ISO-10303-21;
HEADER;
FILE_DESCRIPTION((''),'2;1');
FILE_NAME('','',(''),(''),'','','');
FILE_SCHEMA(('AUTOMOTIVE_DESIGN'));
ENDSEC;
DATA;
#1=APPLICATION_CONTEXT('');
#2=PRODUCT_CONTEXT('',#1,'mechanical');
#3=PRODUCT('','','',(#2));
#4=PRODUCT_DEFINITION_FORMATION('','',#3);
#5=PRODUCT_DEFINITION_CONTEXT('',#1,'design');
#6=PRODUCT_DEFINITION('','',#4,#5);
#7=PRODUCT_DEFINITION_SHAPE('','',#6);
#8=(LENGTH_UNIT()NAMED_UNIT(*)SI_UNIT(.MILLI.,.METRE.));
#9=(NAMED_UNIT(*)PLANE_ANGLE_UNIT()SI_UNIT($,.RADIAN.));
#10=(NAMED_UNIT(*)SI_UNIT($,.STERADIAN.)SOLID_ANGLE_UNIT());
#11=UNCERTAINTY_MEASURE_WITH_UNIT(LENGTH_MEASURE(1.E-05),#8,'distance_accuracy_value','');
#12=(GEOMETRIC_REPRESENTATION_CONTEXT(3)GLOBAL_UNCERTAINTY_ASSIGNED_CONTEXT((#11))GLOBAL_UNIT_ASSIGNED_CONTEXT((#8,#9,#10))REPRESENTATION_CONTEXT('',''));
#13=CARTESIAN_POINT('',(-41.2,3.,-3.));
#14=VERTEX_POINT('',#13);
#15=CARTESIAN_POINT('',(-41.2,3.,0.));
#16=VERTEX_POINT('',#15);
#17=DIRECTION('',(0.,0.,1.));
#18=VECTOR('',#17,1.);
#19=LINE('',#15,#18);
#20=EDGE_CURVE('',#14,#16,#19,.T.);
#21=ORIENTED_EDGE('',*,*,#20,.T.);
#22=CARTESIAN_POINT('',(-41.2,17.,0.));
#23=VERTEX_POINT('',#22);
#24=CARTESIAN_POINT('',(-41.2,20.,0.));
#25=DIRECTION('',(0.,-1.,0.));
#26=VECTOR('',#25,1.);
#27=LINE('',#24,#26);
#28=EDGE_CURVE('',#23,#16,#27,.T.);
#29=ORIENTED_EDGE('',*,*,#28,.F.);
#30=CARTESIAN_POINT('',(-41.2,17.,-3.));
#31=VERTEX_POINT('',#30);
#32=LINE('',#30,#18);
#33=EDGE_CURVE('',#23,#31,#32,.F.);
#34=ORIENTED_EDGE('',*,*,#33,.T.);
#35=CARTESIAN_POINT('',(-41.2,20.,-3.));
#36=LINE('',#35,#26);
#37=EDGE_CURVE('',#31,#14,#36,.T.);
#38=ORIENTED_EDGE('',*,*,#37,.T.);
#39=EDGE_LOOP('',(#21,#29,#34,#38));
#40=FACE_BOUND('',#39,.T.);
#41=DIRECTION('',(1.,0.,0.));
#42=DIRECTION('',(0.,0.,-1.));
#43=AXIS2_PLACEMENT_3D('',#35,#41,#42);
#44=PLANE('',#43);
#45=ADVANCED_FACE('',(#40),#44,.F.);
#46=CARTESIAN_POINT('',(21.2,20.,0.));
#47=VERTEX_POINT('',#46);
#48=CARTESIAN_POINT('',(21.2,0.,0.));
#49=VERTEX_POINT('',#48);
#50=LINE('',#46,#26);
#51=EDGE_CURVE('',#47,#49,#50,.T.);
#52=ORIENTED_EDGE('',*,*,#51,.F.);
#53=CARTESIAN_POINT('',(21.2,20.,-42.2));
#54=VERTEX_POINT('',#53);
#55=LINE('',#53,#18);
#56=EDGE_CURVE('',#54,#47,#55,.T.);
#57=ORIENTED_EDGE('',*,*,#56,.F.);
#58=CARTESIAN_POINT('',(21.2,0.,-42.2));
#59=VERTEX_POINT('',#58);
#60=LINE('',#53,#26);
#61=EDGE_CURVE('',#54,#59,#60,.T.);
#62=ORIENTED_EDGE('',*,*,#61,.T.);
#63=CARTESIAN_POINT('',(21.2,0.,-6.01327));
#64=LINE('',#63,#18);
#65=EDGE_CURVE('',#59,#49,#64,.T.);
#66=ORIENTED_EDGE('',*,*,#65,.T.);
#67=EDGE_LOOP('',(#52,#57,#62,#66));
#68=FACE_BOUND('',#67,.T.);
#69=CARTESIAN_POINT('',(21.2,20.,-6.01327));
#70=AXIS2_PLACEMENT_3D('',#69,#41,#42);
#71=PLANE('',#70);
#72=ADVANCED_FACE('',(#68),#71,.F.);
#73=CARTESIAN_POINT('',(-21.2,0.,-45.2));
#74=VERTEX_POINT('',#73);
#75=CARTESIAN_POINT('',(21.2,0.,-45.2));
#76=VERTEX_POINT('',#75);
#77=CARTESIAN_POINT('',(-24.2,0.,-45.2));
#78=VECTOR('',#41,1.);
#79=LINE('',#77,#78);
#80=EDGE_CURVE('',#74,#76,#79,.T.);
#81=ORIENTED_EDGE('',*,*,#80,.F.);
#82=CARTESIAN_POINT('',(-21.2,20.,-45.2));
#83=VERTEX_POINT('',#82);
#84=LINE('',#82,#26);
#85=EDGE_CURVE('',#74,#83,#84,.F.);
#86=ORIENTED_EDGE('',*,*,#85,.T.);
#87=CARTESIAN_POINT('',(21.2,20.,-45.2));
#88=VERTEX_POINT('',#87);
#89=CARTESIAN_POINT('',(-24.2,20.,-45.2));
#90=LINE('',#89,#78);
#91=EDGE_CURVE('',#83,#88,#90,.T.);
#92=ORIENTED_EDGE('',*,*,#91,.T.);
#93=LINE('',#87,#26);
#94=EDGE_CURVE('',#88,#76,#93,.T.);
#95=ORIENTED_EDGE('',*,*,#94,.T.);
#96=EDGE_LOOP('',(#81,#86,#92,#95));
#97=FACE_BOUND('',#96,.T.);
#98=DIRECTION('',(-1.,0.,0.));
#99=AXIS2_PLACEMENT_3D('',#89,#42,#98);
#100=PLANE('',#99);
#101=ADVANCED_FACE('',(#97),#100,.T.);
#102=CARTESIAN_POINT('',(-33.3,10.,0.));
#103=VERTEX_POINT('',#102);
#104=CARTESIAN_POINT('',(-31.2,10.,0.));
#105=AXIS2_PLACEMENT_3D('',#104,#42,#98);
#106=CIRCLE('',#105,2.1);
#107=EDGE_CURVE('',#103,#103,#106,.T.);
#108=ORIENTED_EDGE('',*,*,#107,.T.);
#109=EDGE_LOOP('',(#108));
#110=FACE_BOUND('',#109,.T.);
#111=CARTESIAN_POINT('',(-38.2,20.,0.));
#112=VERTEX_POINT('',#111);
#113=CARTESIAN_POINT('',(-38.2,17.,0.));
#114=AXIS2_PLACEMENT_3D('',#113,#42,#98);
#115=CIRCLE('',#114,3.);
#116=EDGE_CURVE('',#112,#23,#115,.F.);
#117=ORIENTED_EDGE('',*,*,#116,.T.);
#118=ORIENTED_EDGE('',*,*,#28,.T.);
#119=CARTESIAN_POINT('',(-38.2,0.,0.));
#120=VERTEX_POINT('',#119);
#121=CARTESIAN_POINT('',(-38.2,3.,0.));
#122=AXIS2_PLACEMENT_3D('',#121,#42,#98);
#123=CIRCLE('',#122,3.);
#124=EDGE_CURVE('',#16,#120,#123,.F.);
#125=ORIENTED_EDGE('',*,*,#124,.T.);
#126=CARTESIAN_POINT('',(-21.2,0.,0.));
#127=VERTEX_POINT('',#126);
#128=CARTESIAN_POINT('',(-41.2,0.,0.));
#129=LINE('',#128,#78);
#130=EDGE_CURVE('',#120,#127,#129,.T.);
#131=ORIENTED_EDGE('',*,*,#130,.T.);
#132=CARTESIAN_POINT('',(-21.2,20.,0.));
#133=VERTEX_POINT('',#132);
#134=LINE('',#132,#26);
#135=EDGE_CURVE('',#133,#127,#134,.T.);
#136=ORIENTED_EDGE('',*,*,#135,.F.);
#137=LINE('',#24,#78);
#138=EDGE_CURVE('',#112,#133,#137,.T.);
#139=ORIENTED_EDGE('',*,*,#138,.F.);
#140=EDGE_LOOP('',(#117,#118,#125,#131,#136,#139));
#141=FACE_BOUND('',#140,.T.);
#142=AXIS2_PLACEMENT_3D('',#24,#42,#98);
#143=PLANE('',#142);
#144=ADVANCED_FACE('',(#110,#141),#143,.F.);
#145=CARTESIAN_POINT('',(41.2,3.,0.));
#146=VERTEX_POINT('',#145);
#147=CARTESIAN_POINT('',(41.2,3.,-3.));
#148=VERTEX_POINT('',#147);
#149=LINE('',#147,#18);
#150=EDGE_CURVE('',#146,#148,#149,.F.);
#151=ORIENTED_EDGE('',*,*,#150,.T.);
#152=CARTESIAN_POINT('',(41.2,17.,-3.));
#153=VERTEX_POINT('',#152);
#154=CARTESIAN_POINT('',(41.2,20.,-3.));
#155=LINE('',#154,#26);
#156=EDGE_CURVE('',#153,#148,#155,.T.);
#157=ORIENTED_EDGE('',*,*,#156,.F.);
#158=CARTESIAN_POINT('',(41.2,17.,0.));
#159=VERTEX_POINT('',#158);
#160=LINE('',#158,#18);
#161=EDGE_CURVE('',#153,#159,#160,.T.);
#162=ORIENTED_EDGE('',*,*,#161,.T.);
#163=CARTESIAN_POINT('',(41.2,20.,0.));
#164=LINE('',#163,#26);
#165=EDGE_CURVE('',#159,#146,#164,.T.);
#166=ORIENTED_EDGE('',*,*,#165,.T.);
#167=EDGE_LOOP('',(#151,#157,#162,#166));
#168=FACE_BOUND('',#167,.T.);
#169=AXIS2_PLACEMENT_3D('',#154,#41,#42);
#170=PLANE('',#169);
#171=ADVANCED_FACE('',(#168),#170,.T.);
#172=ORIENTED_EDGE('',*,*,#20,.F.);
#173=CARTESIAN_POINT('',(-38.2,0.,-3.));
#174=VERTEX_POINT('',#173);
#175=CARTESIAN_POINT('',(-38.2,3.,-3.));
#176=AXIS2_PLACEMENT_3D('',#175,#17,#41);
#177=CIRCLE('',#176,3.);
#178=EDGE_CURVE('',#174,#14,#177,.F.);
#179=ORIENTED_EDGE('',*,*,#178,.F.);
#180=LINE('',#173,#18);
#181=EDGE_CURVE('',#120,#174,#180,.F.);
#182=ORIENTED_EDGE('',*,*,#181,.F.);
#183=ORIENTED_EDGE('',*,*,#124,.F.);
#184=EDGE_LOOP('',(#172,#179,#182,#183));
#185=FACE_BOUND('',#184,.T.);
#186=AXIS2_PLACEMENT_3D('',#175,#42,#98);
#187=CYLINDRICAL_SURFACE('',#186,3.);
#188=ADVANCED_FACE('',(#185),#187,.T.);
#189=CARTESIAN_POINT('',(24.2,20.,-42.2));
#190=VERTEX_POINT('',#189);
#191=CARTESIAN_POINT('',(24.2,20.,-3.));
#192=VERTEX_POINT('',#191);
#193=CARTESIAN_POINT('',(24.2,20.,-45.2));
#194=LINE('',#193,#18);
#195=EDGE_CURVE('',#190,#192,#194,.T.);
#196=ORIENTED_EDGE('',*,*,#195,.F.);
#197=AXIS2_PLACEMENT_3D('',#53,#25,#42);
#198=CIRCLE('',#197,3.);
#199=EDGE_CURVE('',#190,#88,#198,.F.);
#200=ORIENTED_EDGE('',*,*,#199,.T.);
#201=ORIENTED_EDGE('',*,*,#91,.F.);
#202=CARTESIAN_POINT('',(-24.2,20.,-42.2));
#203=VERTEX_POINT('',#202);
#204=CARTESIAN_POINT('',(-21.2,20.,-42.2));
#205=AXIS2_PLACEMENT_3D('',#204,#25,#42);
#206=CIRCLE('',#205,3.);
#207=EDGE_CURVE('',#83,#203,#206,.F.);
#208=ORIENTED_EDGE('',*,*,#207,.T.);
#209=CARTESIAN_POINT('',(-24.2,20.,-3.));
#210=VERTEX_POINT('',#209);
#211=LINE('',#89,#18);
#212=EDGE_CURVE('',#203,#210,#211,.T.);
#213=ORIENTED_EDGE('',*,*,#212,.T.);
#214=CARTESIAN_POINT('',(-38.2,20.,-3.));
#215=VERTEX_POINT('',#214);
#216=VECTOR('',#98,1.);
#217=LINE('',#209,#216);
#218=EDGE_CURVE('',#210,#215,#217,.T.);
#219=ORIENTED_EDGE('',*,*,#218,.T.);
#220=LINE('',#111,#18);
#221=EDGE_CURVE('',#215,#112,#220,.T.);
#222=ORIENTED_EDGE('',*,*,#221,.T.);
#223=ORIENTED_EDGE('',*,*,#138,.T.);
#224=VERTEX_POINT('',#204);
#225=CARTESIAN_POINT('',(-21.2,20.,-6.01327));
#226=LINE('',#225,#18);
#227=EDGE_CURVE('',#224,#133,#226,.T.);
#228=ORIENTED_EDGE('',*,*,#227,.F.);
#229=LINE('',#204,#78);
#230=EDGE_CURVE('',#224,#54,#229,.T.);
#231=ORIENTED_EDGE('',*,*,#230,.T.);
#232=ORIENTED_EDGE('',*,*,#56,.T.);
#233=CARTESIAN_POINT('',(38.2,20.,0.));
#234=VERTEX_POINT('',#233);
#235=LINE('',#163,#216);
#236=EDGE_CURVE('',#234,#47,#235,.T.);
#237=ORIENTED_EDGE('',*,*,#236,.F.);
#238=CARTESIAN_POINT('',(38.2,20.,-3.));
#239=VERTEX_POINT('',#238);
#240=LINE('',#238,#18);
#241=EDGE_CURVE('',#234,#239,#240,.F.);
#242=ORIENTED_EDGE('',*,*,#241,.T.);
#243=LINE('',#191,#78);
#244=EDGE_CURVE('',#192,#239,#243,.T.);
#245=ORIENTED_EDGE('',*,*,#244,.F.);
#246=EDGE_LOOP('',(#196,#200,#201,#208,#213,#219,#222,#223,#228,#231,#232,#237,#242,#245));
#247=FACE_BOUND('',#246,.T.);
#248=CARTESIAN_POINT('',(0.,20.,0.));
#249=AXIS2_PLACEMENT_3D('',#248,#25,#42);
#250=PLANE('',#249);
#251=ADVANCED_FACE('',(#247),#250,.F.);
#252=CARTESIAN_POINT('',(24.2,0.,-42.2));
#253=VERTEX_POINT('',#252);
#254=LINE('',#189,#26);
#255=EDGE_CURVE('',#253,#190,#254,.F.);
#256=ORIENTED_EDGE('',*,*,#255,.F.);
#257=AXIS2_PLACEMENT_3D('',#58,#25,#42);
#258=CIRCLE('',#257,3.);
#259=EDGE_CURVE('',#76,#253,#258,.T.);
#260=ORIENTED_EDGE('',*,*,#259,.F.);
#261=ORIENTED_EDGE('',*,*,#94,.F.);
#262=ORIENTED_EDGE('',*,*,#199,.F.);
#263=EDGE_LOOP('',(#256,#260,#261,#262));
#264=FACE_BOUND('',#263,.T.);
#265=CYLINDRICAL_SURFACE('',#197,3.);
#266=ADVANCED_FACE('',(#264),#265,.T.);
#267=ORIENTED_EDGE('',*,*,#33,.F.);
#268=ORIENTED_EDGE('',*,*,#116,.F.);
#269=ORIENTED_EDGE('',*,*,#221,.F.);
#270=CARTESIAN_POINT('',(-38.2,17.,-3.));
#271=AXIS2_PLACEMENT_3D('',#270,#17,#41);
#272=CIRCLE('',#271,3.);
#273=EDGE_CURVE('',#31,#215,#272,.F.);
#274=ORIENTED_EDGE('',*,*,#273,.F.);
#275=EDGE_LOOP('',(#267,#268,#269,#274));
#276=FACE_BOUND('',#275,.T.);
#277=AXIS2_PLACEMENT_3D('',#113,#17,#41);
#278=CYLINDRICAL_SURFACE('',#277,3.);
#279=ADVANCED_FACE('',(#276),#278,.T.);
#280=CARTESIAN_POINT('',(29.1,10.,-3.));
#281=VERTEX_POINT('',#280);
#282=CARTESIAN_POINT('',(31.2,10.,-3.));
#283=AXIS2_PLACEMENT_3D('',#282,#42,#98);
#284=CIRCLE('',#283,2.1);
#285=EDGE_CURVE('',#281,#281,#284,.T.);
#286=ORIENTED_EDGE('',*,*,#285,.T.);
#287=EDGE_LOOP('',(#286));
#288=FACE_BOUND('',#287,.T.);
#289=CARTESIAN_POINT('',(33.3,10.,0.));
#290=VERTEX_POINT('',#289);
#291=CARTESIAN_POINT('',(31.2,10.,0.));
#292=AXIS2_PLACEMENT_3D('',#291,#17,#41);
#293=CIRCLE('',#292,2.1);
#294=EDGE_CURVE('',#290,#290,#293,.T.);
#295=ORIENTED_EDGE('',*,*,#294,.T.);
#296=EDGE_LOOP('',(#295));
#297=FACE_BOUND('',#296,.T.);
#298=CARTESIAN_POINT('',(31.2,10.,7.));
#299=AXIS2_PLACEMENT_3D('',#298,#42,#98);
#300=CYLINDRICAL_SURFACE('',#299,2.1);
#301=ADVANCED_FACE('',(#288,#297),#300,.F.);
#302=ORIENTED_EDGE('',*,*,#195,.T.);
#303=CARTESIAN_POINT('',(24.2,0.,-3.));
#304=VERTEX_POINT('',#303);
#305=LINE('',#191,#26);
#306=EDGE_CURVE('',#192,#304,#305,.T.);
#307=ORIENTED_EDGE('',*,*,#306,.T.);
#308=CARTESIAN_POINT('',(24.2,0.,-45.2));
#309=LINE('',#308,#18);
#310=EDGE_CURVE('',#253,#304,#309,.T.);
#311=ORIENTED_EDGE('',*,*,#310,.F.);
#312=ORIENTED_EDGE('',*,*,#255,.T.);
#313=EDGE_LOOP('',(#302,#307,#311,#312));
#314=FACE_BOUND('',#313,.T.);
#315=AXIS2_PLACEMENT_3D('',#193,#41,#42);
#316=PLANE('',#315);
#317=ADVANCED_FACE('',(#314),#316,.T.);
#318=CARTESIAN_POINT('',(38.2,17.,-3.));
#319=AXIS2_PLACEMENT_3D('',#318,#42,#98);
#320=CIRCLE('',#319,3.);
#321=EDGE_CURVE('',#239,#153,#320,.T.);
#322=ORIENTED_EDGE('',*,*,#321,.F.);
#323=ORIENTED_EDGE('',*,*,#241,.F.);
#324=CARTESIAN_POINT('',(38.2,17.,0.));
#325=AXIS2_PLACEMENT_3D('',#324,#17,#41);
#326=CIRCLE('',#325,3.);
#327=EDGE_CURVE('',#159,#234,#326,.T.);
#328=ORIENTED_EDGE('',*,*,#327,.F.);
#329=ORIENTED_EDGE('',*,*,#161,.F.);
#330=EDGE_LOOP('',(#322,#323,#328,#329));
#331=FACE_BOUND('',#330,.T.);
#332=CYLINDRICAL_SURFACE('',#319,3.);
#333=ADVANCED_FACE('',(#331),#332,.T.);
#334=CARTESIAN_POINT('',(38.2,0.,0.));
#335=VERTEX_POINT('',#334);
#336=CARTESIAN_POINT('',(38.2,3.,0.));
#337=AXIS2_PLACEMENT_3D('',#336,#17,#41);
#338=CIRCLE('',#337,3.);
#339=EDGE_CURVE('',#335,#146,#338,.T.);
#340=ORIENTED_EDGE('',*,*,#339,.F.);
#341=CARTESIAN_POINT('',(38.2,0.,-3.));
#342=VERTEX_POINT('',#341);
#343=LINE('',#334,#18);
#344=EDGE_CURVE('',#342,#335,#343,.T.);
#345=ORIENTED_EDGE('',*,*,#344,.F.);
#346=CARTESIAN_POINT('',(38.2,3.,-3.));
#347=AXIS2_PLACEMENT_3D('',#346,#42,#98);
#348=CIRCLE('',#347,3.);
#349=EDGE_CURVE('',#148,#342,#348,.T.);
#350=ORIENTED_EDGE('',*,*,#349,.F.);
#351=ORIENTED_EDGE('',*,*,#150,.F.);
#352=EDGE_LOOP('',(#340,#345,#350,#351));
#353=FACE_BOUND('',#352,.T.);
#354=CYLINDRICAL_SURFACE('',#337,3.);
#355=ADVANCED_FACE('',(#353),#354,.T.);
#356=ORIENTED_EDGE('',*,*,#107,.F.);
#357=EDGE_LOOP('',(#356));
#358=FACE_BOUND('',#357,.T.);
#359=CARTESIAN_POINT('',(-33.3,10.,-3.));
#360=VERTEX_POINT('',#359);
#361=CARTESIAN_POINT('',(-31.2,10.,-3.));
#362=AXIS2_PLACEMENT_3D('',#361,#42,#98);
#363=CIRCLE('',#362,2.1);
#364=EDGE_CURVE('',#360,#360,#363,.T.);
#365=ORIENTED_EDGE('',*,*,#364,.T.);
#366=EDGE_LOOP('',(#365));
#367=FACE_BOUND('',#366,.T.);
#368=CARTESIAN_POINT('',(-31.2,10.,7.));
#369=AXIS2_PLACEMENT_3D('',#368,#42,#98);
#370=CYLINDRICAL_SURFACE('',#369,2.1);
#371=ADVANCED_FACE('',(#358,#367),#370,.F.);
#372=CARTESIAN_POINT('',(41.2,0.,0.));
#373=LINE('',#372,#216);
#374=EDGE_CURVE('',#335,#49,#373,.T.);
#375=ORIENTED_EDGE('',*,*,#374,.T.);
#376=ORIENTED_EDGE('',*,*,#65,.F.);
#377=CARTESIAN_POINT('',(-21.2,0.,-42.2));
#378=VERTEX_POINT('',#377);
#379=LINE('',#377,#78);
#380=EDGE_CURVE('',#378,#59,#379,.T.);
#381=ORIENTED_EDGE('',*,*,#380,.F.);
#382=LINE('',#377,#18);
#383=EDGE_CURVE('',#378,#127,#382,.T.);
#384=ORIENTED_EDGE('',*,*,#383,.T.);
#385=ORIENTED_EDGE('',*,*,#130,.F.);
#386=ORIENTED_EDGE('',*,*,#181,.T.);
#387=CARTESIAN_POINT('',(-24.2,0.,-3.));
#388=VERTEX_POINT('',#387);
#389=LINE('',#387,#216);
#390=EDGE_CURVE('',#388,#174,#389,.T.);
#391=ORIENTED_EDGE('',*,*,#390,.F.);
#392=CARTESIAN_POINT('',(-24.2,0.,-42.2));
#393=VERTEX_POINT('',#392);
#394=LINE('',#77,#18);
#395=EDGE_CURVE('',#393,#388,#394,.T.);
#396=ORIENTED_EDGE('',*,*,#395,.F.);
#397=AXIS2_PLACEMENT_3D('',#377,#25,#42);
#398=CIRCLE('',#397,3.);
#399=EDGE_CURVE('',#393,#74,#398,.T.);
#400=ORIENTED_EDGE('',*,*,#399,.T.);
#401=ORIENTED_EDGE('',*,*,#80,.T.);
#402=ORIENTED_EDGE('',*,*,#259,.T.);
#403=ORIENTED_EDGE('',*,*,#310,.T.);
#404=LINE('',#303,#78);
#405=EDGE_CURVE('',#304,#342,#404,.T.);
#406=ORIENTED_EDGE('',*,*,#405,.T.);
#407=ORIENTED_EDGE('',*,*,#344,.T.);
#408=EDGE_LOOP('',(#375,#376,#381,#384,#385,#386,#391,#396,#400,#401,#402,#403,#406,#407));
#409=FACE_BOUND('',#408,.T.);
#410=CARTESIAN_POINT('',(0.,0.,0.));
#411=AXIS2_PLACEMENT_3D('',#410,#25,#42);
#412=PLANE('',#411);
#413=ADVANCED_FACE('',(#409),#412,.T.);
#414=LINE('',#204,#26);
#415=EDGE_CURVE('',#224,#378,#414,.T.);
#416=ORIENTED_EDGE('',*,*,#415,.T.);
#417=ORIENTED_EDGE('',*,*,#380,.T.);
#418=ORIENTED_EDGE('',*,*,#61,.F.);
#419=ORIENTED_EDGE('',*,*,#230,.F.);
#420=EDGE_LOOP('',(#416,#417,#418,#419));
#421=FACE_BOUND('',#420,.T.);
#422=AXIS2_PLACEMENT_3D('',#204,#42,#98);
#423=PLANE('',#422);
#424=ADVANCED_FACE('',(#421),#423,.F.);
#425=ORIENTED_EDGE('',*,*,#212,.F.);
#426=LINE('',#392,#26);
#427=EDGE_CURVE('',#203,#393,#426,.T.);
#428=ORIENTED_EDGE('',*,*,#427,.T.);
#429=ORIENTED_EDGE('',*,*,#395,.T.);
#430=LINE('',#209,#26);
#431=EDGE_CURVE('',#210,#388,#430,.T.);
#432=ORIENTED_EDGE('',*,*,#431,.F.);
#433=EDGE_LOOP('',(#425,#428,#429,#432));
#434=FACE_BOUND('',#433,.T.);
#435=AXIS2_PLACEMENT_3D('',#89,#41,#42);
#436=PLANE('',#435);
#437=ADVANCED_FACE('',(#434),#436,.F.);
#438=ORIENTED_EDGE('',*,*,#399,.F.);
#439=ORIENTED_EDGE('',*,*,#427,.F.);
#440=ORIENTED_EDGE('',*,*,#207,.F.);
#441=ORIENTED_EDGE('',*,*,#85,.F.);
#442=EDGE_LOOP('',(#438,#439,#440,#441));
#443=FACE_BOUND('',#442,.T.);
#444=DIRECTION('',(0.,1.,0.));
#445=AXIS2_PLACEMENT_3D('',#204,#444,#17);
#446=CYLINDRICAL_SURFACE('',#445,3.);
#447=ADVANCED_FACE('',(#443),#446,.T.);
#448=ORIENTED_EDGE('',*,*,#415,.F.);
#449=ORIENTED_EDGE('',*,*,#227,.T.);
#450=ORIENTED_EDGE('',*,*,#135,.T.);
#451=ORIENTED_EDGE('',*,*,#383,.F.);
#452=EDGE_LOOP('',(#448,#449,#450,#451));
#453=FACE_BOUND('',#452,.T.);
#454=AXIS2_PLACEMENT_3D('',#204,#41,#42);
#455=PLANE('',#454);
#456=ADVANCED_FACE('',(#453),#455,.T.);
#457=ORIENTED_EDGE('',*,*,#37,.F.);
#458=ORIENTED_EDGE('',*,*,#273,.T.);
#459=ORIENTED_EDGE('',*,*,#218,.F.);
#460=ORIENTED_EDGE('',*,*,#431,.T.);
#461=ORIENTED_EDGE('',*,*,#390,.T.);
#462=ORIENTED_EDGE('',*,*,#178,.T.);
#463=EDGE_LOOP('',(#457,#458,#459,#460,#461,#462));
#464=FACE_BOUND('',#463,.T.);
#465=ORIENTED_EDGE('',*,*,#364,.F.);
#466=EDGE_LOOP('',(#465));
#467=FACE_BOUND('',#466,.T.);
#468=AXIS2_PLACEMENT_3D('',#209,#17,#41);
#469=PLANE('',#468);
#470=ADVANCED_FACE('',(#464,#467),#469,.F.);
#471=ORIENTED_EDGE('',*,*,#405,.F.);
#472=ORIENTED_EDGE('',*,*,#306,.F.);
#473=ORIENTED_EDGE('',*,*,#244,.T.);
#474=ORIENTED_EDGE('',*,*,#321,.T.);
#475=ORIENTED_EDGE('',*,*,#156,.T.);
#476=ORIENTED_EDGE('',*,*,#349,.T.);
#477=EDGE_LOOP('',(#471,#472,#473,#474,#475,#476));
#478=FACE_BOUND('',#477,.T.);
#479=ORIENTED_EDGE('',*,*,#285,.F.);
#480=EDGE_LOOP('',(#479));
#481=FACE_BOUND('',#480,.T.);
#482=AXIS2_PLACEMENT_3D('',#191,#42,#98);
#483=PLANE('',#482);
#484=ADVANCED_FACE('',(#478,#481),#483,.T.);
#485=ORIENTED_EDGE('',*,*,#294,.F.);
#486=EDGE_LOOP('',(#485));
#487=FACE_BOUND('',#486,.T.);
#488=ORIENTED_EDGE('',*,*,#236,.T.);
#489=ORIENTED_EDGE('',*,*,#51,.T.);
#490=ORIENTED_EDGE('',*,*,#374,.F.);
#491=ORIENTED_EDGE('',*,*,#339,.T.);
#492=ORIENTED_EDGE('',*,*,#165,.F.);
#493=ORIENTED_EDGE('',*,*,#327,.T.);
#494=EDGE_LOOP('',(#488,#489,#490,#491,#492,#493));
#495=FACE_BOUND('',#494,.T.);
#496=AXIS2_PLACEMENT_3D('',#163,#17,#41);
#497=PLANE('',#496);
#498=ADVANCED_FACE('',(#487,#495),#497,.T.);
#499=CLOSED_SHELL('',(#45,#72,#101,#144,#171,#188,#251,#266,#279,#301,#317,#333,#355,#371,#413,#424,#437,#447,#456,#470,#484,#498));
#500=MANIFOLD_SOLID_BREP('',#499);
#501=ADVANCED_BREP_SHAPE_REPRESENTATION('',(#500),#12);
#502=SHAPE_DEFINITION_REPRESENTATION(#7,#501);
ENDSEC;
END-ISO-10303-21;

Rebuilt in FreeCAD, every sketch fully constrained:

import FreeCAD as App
import Part
import Sketcher
Q = App.Units.Quantity


def edges_at(feature, points):
    """Names of the edges that pass closest to the given points."""
    edges = feature.Shape.Edges
    near = lambda p: min(range(len(edges)), key=lambda i: edges[i].distToShape(Part.Vertex(*p))[0])
    return sorted({f"Edge{near(p) + 1}" for p in points})


def add_polygon(sketch, points):
    """Adds a closed chain of lines whose ends are joined by coincident constraints."""
    first, n = sketch.GeometryCount, len(points)
    for a, b in zip(points, points[1:] + points[:1]):
        sketch.addGeometry(Part.LineSegment(App.Vector(*a, 0), App.Vector(*b, 0)), False)
    for i in range(n):
        sketch.addConstraint(Sketcher.Constraint("Coincident", first + i, 2, first + (i + 1) % n, 1))

doc = App.newDocument("Part")
body = doc.addObject("PartDesign::Body", "Body")

# Sketch on XZ plane
sketch1 = body.newObject("Sketcher::SketchObject", "Sketch")
sketch1.AttachmentSupport = (doc.getObject("XZ_Plane"), [""])
sketch1.MapMode = "FlatFace"
add_polygon(sketch1, [(-21.2, 0), (-21.2, -42.2), (21.2, -42.2), (21.2, 0), (41.2, 0), (41.2, -3), (24.2, -3), (24.2, -45.2), (-24.2, -45.2), (-24.2, -3), (-41.2, -3), (-41.2, 0)])  # lines 0-11
sketch1.addConstraint([
    Sketcher.Constraint("Vertical", 0),
    Sketcher.Constraint("Horizontal", 1),
    Sketcher.Constraint("Vertical", 2),
    Sketcher.Constraint("Horizontal", 3),
    Sketcher.Constraint("Vertical", 4),
    Sketcher.Constraint("Horizontal", 5),
    Sketcher.Constraint("Vertical", 6),
    Sketcher.Constraint("Horizontal", 7),
    Sketcher.Constraint("Vertical", 8),
    Sketcher.Constraint("Horizontal", 9),
    Sketcher.Constraint("Vertical", 10),
    Sketcher.Constraint("Horizontal", 11),
    Sketcher.Constraint("Symmetric", 3, 2, 10, 2, -1, 1),
    Sketcher.Constraint("Symmetric", 5, 2, 8, 2, -2),
    Sketcher.Constraint("Symmetric", 2, 2, 11, 2, -2),
    Sketcher.Constraint("Equal", 2, 6),
    Sketcher.Constraint("DistanceX", 3, 1, 3, 2, Q("20 mm")),
    Sketcher.Constraint("DistanceX", 5, 2, 5, 1, Q("17 mm")),
    Sketcher.Constraint("DistanceY", 4, 2, 4, 1, Q("3 mm")),
    Sketcher.Constraint("DistanceX", 1, 1, 1, 2, Q("42.4 mm")),
    Sketcher.Constraint("DistanceY", 0, 2, 0, 1, Q("42.2 mm")),
])
pad1 = body.newObject("PartDesign::Pad", "Pad")
pad1.Profile = sketch1
pad1.Length = 20
pad1.Reversed = True
doc.recompute()

fillet = body.newObject("PartDesign::Fillet", "Fillet")
fillet.Base = (pad1, edges_at(pad1, [(-24.2, 10, -45.2), (24.2, 10, -45.2)]))
fillet.Radius = 3
doc.recompute()

fillet2 = body.newObject("PartDesign::Fillet", "Fillet001")
fillet2.Base = (fillet, edges_at(fillet, [
    (-41.2, 20, -1.5),
    (41.2, 0, -1.5),
    (-41.2, 0, -1.5),
    (41.2, 20, -1.5),
]))
fillet2.Radius = 3

# Sketch on XY plane
sketch2 = body.newObject("Sketcher::SketchObject", "Sketch001")
sketch2.AttachmentSupport = (doc.getObject("XY_Plane"), [""])
sketch2.MapMode = "FlatFace"
sketch2.AttachmentOffset = App.Placement(App.Vector(0, 0, -3), App.Rotation())
sketch2.addGeometry([
    Part.Circle(App.Vector(-31.2, 10, 0), App.Vector(0, 0, 1), 2.1),
    Part.Circle(App.Vector(31.2, 10, 0), App.Vector(0, 0, 1), 2.1),
], False)
sketch2.addConstraint([
    Sketcher.Constraint("Equal", 0, 1),
    Sketcher.Constraint("Symmetric", 0, 3, 1, 3, -2),
    Sketcher.Constraint("Diameter", 0, Q("4.2 mm")),
    Sketcher.Constraint("DistanceY", -1, 1, 0, 3, Q("10 mm")),
    Sketcher.Constraint("DistanceX", 0, 3, -1, 1, Q("31.2 mm")),
])
pocket1 = body.newObject("PartDesign::Pocket", "Pocket")
pocket1.Profile = sketch2
pocket1.Length = 10
pocket1.Reversed = True

doc.recompute()
